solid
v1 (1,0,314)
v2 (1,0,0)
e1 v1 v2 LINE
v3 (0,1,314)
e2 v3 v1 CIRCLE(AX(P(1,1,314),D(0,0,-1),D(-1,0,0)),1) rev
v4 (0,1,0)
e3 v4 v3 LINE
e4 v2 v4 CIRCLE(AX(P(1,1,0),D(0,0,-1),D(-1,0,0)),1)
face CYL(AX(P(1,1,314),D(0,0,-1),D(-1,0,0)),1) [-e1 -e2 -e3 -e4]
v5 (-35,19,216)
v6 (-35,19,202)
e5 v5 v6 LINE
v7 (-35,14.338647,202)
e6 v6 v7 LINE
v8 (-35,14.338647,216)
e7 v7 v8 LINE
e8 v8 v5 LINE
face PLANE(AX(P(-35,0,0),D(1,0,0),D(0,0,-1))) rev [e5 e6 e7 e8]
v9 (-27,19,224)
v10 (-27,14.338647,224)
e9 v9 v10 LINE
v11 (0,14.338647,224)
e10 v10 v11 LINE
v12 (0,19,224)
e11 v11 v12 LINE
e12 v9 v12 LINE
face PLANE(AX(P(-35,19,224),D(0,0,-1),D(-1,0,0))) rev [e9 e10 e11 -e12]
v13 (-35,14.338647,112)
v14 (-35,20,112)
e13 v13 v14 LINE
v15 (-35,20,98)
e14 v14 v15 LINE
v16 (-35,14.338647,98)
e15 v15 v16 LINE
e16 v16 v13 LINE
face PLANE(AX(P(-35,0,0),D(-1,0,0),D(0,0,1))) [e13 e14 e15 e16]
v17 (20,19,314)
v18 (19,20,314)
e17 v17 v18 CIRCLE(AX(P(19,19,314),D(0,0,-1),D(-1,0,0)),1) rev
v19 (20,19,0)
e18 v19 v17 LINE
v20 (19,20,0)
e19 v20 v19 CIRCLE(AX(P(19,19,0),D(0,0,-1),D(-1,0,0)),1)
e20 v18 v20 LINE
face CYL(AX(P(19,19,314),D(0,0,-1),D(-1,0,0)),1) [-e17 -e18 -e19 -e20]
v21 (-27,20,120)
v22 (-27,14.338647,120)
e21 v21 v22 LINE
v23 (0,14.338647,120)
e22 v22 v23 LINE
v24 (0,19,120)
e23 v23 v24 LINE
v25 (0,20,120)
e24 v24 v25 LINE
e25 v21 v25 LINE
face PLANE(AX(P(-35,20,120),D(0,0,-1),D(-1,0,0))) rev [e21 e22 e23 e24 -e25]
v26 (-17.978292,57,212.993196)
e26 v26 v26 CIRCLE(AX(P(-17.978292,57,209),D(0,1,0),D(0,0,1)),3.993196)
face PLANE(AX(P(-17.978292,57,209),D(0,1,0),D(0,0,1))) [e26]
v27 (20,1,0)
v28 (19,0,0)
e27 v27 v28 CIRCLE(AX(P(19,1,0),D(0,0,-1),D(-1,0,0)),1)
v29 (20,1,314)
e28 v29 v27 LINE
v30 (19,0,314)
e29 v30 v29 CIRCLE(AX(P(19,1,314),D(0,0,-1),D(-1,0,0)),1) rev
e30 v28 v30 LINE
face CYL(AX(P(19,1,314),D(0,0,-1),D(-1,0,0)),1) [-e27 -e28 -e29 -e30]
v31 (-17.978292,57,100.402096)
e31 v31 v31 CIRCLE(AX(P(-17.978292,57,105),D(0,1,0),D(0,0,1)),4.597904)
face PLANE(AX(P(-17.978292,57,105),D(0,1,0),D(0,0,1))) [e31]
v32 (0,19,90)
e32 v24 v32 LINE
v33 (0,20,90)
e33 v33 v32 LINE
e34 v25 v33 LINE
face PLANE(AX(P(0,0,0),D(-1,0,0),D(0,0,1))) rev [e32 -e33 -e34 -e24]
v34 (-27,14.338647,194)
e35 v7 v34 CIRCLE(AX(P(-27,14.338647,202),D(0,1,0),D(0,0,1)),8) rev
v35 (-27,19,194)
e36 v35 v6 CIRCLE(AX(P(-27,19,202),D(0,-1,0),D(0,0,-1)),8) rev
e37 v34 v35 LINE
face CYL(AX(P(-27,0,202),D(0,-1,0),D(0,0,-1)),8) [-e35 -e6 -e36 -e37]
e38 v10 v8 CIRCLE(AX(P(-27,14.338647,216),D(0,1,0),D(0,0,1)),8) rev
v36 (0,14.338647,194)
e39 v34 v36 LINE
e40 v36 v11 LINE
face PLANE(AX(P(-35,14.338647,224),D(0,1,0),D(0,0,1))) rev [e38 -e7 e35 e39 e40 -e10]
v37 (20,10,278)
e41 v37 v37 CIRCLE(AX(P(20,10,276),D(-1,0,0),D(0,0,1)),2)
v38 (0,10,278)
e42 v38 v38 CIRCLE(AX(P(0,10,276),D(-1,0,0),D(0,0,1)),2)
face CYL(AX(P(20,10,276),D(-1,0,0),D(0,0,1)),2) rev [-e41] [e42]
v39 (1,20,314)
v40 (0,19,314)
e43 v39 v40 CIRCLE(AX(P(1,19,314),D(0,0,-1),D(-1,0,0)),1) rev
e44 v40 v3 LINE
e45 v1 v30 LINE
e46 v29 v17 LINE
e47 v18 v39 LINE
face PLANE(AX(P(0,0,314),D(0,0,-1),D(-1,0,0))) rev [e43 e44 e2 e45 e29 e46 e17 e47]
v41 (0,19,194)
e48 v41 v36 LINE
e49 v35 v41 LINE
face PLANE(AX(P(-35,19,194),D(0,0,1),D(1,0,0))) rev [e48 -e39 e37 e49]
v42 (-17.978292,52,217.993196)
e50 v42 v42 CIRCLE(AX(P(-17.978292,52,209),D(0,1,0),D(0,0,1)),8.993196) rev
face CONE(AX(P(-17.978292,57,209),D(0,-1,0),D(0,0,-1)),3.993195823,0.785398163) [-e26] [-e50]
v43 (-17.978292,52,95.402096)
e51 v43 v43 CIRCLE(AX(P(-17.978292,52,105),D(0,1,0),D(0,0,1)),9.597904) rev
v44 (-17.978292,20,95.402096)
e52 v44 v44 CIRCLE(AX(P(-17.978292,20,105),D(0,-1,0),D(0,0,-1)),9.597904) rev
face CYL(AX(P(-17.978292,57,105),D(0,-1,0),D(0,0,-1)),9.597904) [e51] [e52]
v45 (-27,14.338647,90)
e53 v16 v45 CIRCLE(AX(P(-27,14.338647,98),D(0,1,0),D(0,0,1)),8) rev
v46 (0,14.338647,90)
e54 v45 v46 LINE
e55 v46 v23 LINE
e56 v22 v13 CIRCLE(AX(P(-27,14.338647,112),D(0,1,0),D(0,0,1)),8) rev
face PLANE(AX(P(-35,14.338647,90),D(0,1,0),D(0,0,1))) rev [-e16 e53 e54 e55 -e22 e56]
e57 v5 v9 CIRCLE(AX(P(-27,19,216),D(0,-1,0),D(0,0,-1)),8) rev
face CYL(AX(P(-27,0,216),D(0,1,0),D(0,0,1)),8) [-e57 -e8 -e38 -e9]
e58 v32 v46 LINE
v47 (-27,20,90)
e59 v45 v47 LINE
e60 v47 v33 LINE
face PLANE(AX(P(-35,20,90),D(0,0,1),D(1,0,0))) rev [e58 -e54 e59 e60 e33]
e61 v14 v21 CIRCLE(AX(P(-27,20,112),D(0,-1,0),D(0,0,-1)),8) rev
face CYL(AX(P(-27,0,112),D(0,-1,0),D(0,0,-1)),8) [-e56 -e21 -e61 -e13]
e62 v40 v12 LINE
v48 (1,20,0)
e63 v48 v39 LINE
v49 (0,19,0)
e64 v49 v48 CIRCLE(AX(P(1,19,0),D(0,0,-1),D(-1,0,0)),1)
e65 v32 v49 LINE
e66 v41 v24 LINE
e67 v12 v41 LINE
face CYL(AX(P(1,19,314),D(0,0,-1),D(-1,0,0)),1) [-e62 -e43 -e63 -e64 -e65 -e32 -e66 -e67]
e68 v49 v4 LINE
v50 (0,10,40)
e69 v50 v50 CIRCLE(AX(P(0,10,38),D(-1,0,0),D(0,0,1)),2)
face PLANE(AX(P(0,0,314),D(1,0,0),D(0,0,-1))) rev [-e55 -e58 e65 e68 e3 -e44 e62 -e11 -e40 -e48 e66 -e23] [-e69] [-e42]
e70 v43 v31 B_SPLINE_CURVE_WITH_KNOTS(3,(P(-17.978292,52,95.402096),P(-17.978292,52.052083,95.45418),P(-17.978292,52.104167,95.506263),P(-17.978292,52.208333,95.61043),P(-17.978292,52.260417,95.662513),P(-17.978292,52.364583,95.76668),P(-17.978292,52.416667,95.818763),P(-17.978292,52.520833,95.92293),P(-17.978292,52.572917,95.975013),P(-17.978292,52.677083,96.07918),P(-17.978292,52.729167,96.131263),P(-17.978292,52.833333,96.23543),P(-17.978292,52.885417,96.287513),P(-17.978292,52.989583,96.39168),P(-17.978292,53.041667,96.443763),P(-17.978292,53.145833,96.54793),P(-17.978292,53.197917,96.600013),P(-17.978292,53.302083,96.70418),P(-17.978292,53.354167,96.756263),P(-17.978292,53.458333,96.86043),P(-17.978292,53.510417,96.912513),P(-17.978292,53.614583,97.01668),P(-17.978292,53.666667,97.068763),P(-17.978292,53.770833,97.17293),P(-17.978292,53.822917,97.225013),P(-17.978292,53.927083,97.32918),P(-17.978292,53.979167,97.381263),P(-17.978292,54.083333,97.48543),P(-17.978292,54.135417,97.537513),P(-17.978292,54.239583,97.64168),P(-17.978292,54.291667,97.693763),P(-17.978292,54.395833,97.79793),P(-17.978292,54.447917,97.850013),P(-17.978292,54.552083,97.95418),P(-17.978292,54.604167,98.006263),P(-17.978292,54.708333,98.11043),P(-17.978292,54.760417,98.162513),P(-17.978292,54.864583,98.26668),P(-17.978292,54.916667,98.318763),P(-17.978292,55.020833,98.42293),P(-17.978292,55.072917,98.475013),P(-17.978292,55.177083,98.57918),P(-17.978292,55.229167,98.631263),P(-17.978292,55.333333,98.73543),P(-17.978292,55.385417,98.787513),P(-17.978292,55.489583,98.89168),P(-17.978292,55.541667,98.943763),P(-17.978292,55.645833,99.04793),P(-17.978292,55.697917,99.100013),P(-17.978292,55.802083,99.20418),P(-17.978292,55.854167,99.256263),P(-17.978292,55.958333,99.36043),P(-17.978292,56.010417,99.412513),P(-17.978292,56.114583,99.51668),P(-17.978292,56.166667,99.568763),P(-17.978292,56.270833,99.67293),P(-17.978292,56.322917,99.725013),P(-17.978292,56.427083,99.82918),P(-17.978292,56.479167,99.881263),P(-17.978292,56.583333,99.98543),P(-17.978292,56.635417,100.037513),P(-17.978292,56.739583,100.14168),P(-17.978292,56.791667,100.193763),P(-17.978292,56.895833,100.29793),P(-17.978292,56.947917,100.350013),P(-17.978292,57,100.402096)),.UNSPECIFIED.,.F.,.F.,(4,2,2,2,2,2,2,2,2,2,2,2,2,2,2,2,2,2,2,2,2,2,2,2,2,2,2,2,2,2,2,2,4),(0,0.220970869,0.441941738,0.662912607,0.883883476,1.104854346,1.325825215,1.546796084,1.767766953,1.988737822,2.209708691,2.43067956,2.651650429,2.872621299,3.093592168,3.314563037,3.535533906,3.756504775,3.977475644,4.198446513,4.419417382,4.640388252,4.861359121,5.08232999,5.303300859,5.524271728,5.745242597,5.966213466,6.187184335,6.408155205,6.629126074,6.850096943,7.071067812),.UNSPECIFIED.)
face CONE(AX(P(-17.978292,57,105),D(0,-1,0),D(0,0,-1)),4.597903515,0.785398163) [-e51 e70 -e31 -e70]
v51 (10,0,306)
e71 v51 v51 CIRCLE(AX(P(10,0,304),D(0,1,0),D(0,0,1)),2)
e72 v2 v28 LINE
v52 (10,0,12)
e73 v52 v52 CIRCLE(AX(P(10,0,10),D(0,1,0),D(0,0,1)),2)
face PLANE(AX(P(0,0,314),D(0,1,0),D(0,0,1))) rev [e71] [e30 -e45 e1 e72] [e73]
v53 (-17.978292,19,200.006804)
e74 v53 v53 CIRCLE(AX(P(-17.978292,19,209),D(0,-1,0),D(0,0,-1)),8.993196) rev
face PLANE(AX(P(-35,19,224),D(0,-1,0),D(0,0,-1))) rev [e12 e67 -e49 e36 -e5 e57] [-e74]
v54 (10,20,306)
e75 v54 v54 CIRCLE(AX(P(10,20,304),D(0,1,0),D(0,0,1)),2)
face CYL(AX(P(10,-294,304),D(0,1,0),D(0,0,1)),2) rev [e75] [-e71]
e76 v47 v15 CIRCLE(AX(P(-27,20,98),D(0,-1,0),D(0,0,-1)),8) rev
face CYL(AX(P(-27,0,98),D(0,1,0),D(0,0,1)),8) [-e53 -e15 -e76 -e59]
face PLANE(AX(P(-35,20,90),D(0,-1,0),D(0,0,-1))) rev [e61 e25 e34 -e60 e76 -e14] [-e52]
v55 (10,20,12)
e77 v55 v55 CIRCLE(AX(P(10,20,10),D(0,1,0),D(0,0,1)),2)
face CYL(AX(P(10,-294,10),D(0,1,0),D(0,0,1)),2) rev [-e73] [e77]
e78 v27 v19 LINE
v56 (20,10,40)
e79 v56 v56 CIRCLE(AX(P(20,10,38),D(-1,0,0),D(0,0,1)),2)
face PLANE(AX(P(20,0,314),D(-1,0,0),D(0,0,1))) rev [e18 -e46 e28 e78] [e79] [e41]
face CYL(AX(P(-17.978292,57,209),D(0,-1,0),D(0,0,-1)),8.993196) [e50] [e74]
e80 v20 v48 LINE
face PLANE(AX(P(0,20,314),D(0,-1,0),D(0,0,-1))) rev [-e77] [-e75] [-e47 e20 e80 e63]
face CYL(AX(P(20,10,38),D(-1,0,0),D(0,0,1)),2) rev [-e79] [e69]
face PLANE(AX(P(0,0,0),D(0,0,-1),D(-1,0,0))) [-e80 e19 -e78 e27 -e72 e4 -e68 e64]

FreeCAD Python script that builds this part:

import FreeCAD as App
import Part
import Sketcher
Q = App.Units.Quantity


def edges_at(feature, points):
    """Names of the edges that pass closest to the given points."""
    edges = feature.Shape.Edges
    near = lambda p: min(range(len(edges)), key=lambda i: edges[i].distToShape(Part.Vertex(*p))[0])
    return sorted({f"Edge{near(p) + 1}" for p in points})


def add_polygon(sketch, points):
    """Adds a closed chain of lines whose ends are joined by coincident constraints."""
    first, n = sketch.GeometryCount, len(points)
    for a, b in zip(points, points[1:] + points[:1]):
        sketch.addGeometry(Part.LineSegment(App.Vector(*a, 0), App.Vector(*b, 0)), False)
    for i in range(n):
        sketch.addConstraint(Sketcher.Constraint("Coincident", first + i, 2, first + (i + 1) % n, 1))

doc = App.newDocument("Part")
params = doc.addObject("Spreadsheet::Sheet", "Params")
for row, (alias, value) in enumerate([
    ("sketch1_width", "20 mm"),
    ("pad1_length", "314 mm"),
    ("sketch2_diameter", "4 mm"),
    ("pocket1_length", "314 mm"),
    ("fillet_radius", "1 mm"),
    ("sketch3_diameter", "4 mm"),
    ("pocket2_length", "20 mm"),
    ("sketch4_height", "30 mm"),
    ("pad2_length", "35 mm"),
    ("pad3_length", "38 mm"),
    ("fillet2_radius", "8 mm"),
    ("chamfer_size", "5 mm"),
], start=1):
    params.set(f"A{row}", alias)
    params.set(f"B{row}", "=" + value)
    params.setAlias(f"B{row}", alias)

body = doc.addObject("PartDesign::Body", "Body")

# Sketch on XY plane
sketch1 = body.newObject("Sketcher::SketchObject", "Sketch")
sketch1.AttachmentSupport = (doc.getObject("XY_Plane"), [""])
sketch1.MapMode = "FlatFace"
add_polygon(sketch1, [(0, 20), (0, 0), (20, 0), (20, 20)])  # lines 0-3
sketch1.addConstraint([
    Sketcher.Constraint("Vertical", 0),
    Sketcher.Constraint("Horizontal", 1),
    Sketcher.Constraint("Vertical", 2),
    Sketcher.Constraint("Horizontal", 3),
    Sketcher.Constraint("Coincident", 0, 2, -1, 1),
    Sketcher.Constraint("Equal", 3, 0),
    Sketcher.Constraint("DistanceX", 1, 1, 1, 2, Q("20 mm")),
])
sketch1.setExpression("Constraints[10]", "Params.sketch1_width")
pad1 = body.newObject("PartDesign::Pad", "Pad")
pad1.Profile = sketch1
pad1.setExpression("Length", "Params.pad1_length")

# Sketch on XZ plane
sketch2 = body.newObject("Sketcher::SketchObject", "Sketch001")
sketch2.AttachmentSupport = (doc.getObject("XZ_Plane"), [""])
sketch2.MapMode = "FlatFace"
sketch2.AttachmentOffset = App.Placement(App.Vector(0, 0, -20), App.Rotation())
sketch2.addGeometry([
    Part.Circle(App.Vector(10, 10, 0), App.Vector(0, 0, 1), 2),
    Part.Circle(App.Vector(10, 304, 0), App.Vector(0, 0, 1), 2),
], False)
sketch2.addConstraint([
    Sketcher.Constraint("Equal", 0, 1),
    Sketcher.Constraint("Vertical", 0, 3, 1, 3),
    Sketcher.Constraint("Diameter", 0, Q("4 mm")),
    Sketcher.Constraint("DistanceX", -1, 1, 0, 3, Q("10 mm")),
    Sketcher.Constraint("DistanceY", -1, 1, 0, 3, Q("10 mm")),
    Sketcher.Constraint("DistanceY", -1, 1, 1, 3, Q("304 mm")),
])
sketch2.setExpression("Constraints[2]", "Params.sketch2_diameter")
pocket1 = body.newObject("PartDesign::Pocket", "Pocket")
pocket1.Profile = sketch2
pocket1.setExpression("Length", "Params.pocket1_length")
pocket1.Reversed = True
doc.recompute()

fillet = body.newObject("PartDesign::Fillet", "Fillet")
fillet.Base = (pocket1, edges_at(pocket1, [
    (0, 20, 157),
    (20, 20, 157),
    (20, 0, 157),
    (0, 0, 157),
]))
fillet.setExpression("Radius", "Params.fillet_radius")

# Sketch on YZ plane
sketch3 = body.newObject("Sketcher::SketchObject", "Sketch002")
sketch3.AttachmentSupport = (doc.getObject("YZ_Plane"), [""])
sketch3.MapMode = "FlatFace"
sketch3.addGeometry([
    Part.Circle(App.Vector(10, 276, 0), App.Vector(0, 0, 1), 2),
    Part.Circle(App.Vector(10, 38, 0), App.Vector(0, 0, 1), 2),
], False)
sketch3.addConstraint([
    Sketcher.Constraint("Equal", 0, 1),
    Sketcher.Constraint("Vertical", 0, 3, 1, 3),
    Sketcher.Constraint("Diameter", 0, Q("4 mm")),
    Sketcher.Constraint("DistanceX", -1, 1, 0, 3, Q("10 mm")),
    Sketcher.Constraint("DistanceY", -1, 1, 0, 3, Q("276 mm")),
    Sketcher.Constraint("DistanceY", -1, 1, 1, 3, Q("38 mm")),
])
sketch3.setExpression("Constraints[2]", "Params.sketch3_diameter")
pocket2 = body.newObject("PartDesign::Pocket", "Pocket001")
pocket2.Profile = sketch3
pocket2.setExpression("Length", "Params.pocket2_length")
pocket2.Reversed = True

# Sketch on YZ plane
sketch4 = body.newObject("Sketcher::SketchObject", "Sketch003")
sketch4.AttachmentSupport = (doc.getObject("YZ_Plane"), [""])
sketch4.MapMode = "FlatFace"
add_polygon(sketch4, [(20, 90), (14.3, 90), (14.3, 120), (20, 120)])  # lines 0-3
add_polygon(sketch4, [(19, 194), (14.3, 194), (14.3, 224), (19, 224)])  # lines 4-7
sketch4.addConstraint([
    Sketcher.Constraint("Horizontal", 0),
    Sketcher.Constraint("Vertical", 1),
    Sketcher.Constraint("Horizontal", 2),
    Sketcher.Constraint("Vertical", 3),
    Sketcher.Constraint("Horizontal", 4),
    Sketcher.Constraint("Vertical", 5),
    Sketcher.Constraint("Horizontal", 6),
    Sketcher.Constraint("Vertical", 7),
    Sketcher.Constraint("Vertical", 1, 2, 4, 2),
    Sketcher.Constraint("Equal", 3, 5),
    Sketcher.Constraint("DistanceY", 1, 1, 1, 2, Q("30 mm")),
    Sketcher.Constraint("DistanceY", -1, 1, 0, 2, Q("90 mm")),
    Sketcher.Constraint("DistanceX", -1, 1, 2, 2, Q("20 mm")),
    Sketcher.Constraint("DistanceY", -1, 1, 4, 2, Q("194 mm")),
    Sketcher.Constraint("DistanceX", -1, 1, 6, 2, Q("19 mm")),
    Sketcher.Constraint("DistanceX", 0, 2, 0, 1, Q("5.661353 mm")),
])
sketch4.setExpression("Constraints[18]", "Params.sketch4_height")
pad2 = body.newObject("PartDesign::Pad", "Pad001")
pad2.Profile = sketch4
pad2.setExpression("Length", "Params.pad2_length")
pad2.Reversed = True

# Sketch on XZ plane
sketch5 = body.newObject("Sketcher::SketchObject", "Sketch004")
sketch5.AttachmentSupport = (doc.getObject("XZ_Plane"), [""])
sketch5.MapMode = "FlatFace"
sketch5.AttachmentOffset = App.Placement(App.Vector(0, 0, -19), App.Rotation())
sketch5.addGeometry([
    Part.Circle(App.Vector(-18, 209, 0), App.Vector(0, 0, 1), 9),
    Part.Circle(App.Vector(-18, 105, 0), App.Vector(0, 0, 1), 10),
], False)
sketch5.addConstraint([
    Sketcher.Constraint("Vertical", 0, 3, 1, 3),
    Sketcher.Constraint("DistanceY", -1, 1, 0, 3, Q("209 mm")),
    Sketcher.Constraint("DistanceY", -1, 1, 1, 3, Q("105 mm")),
    Sketcher.Constraint("Diameter", 0, Q("17.986392 mm")),
    Sketcher.Constraint("Diameter", 1, Q("19.195807 mm")),
    Sketcher.Constraint("DistanceX", 0, 3, -1, 1, Q("17.978292 mm")),
])
pad3 = body.newObject("PartDesign::Pad", "Pad002")
pad3.Profile = sketch5
pad3.setExpression("Length", "Params.pad3_length")
pad3.Reversed = True
doc.recompute()

fillet2 = body.newObject("PartDesign::Fillet", "Fillet001")
fillet2.Base = (pad3, edges_at(pad3, [
    (-35, 17.169, 90),
    (-35, 17.169, 120),
    (-35, 16.669, 224),
    (-35, 16.669, 194),
]))
fillet2.setExpression("Radius", "Params.fillet2_radius")
doc.recompute()

chamfer = body.newObject("PartDesign::Chamfer", "Chamfer")
chamfer.Base = (fillet2, edges_at(fillet2, [(-17.978, 57, 217.993), (-17.978, 57, 114.598)]))
chamfer.setExpression("Size", "Params.chamfer_size")

doc.recompute()
